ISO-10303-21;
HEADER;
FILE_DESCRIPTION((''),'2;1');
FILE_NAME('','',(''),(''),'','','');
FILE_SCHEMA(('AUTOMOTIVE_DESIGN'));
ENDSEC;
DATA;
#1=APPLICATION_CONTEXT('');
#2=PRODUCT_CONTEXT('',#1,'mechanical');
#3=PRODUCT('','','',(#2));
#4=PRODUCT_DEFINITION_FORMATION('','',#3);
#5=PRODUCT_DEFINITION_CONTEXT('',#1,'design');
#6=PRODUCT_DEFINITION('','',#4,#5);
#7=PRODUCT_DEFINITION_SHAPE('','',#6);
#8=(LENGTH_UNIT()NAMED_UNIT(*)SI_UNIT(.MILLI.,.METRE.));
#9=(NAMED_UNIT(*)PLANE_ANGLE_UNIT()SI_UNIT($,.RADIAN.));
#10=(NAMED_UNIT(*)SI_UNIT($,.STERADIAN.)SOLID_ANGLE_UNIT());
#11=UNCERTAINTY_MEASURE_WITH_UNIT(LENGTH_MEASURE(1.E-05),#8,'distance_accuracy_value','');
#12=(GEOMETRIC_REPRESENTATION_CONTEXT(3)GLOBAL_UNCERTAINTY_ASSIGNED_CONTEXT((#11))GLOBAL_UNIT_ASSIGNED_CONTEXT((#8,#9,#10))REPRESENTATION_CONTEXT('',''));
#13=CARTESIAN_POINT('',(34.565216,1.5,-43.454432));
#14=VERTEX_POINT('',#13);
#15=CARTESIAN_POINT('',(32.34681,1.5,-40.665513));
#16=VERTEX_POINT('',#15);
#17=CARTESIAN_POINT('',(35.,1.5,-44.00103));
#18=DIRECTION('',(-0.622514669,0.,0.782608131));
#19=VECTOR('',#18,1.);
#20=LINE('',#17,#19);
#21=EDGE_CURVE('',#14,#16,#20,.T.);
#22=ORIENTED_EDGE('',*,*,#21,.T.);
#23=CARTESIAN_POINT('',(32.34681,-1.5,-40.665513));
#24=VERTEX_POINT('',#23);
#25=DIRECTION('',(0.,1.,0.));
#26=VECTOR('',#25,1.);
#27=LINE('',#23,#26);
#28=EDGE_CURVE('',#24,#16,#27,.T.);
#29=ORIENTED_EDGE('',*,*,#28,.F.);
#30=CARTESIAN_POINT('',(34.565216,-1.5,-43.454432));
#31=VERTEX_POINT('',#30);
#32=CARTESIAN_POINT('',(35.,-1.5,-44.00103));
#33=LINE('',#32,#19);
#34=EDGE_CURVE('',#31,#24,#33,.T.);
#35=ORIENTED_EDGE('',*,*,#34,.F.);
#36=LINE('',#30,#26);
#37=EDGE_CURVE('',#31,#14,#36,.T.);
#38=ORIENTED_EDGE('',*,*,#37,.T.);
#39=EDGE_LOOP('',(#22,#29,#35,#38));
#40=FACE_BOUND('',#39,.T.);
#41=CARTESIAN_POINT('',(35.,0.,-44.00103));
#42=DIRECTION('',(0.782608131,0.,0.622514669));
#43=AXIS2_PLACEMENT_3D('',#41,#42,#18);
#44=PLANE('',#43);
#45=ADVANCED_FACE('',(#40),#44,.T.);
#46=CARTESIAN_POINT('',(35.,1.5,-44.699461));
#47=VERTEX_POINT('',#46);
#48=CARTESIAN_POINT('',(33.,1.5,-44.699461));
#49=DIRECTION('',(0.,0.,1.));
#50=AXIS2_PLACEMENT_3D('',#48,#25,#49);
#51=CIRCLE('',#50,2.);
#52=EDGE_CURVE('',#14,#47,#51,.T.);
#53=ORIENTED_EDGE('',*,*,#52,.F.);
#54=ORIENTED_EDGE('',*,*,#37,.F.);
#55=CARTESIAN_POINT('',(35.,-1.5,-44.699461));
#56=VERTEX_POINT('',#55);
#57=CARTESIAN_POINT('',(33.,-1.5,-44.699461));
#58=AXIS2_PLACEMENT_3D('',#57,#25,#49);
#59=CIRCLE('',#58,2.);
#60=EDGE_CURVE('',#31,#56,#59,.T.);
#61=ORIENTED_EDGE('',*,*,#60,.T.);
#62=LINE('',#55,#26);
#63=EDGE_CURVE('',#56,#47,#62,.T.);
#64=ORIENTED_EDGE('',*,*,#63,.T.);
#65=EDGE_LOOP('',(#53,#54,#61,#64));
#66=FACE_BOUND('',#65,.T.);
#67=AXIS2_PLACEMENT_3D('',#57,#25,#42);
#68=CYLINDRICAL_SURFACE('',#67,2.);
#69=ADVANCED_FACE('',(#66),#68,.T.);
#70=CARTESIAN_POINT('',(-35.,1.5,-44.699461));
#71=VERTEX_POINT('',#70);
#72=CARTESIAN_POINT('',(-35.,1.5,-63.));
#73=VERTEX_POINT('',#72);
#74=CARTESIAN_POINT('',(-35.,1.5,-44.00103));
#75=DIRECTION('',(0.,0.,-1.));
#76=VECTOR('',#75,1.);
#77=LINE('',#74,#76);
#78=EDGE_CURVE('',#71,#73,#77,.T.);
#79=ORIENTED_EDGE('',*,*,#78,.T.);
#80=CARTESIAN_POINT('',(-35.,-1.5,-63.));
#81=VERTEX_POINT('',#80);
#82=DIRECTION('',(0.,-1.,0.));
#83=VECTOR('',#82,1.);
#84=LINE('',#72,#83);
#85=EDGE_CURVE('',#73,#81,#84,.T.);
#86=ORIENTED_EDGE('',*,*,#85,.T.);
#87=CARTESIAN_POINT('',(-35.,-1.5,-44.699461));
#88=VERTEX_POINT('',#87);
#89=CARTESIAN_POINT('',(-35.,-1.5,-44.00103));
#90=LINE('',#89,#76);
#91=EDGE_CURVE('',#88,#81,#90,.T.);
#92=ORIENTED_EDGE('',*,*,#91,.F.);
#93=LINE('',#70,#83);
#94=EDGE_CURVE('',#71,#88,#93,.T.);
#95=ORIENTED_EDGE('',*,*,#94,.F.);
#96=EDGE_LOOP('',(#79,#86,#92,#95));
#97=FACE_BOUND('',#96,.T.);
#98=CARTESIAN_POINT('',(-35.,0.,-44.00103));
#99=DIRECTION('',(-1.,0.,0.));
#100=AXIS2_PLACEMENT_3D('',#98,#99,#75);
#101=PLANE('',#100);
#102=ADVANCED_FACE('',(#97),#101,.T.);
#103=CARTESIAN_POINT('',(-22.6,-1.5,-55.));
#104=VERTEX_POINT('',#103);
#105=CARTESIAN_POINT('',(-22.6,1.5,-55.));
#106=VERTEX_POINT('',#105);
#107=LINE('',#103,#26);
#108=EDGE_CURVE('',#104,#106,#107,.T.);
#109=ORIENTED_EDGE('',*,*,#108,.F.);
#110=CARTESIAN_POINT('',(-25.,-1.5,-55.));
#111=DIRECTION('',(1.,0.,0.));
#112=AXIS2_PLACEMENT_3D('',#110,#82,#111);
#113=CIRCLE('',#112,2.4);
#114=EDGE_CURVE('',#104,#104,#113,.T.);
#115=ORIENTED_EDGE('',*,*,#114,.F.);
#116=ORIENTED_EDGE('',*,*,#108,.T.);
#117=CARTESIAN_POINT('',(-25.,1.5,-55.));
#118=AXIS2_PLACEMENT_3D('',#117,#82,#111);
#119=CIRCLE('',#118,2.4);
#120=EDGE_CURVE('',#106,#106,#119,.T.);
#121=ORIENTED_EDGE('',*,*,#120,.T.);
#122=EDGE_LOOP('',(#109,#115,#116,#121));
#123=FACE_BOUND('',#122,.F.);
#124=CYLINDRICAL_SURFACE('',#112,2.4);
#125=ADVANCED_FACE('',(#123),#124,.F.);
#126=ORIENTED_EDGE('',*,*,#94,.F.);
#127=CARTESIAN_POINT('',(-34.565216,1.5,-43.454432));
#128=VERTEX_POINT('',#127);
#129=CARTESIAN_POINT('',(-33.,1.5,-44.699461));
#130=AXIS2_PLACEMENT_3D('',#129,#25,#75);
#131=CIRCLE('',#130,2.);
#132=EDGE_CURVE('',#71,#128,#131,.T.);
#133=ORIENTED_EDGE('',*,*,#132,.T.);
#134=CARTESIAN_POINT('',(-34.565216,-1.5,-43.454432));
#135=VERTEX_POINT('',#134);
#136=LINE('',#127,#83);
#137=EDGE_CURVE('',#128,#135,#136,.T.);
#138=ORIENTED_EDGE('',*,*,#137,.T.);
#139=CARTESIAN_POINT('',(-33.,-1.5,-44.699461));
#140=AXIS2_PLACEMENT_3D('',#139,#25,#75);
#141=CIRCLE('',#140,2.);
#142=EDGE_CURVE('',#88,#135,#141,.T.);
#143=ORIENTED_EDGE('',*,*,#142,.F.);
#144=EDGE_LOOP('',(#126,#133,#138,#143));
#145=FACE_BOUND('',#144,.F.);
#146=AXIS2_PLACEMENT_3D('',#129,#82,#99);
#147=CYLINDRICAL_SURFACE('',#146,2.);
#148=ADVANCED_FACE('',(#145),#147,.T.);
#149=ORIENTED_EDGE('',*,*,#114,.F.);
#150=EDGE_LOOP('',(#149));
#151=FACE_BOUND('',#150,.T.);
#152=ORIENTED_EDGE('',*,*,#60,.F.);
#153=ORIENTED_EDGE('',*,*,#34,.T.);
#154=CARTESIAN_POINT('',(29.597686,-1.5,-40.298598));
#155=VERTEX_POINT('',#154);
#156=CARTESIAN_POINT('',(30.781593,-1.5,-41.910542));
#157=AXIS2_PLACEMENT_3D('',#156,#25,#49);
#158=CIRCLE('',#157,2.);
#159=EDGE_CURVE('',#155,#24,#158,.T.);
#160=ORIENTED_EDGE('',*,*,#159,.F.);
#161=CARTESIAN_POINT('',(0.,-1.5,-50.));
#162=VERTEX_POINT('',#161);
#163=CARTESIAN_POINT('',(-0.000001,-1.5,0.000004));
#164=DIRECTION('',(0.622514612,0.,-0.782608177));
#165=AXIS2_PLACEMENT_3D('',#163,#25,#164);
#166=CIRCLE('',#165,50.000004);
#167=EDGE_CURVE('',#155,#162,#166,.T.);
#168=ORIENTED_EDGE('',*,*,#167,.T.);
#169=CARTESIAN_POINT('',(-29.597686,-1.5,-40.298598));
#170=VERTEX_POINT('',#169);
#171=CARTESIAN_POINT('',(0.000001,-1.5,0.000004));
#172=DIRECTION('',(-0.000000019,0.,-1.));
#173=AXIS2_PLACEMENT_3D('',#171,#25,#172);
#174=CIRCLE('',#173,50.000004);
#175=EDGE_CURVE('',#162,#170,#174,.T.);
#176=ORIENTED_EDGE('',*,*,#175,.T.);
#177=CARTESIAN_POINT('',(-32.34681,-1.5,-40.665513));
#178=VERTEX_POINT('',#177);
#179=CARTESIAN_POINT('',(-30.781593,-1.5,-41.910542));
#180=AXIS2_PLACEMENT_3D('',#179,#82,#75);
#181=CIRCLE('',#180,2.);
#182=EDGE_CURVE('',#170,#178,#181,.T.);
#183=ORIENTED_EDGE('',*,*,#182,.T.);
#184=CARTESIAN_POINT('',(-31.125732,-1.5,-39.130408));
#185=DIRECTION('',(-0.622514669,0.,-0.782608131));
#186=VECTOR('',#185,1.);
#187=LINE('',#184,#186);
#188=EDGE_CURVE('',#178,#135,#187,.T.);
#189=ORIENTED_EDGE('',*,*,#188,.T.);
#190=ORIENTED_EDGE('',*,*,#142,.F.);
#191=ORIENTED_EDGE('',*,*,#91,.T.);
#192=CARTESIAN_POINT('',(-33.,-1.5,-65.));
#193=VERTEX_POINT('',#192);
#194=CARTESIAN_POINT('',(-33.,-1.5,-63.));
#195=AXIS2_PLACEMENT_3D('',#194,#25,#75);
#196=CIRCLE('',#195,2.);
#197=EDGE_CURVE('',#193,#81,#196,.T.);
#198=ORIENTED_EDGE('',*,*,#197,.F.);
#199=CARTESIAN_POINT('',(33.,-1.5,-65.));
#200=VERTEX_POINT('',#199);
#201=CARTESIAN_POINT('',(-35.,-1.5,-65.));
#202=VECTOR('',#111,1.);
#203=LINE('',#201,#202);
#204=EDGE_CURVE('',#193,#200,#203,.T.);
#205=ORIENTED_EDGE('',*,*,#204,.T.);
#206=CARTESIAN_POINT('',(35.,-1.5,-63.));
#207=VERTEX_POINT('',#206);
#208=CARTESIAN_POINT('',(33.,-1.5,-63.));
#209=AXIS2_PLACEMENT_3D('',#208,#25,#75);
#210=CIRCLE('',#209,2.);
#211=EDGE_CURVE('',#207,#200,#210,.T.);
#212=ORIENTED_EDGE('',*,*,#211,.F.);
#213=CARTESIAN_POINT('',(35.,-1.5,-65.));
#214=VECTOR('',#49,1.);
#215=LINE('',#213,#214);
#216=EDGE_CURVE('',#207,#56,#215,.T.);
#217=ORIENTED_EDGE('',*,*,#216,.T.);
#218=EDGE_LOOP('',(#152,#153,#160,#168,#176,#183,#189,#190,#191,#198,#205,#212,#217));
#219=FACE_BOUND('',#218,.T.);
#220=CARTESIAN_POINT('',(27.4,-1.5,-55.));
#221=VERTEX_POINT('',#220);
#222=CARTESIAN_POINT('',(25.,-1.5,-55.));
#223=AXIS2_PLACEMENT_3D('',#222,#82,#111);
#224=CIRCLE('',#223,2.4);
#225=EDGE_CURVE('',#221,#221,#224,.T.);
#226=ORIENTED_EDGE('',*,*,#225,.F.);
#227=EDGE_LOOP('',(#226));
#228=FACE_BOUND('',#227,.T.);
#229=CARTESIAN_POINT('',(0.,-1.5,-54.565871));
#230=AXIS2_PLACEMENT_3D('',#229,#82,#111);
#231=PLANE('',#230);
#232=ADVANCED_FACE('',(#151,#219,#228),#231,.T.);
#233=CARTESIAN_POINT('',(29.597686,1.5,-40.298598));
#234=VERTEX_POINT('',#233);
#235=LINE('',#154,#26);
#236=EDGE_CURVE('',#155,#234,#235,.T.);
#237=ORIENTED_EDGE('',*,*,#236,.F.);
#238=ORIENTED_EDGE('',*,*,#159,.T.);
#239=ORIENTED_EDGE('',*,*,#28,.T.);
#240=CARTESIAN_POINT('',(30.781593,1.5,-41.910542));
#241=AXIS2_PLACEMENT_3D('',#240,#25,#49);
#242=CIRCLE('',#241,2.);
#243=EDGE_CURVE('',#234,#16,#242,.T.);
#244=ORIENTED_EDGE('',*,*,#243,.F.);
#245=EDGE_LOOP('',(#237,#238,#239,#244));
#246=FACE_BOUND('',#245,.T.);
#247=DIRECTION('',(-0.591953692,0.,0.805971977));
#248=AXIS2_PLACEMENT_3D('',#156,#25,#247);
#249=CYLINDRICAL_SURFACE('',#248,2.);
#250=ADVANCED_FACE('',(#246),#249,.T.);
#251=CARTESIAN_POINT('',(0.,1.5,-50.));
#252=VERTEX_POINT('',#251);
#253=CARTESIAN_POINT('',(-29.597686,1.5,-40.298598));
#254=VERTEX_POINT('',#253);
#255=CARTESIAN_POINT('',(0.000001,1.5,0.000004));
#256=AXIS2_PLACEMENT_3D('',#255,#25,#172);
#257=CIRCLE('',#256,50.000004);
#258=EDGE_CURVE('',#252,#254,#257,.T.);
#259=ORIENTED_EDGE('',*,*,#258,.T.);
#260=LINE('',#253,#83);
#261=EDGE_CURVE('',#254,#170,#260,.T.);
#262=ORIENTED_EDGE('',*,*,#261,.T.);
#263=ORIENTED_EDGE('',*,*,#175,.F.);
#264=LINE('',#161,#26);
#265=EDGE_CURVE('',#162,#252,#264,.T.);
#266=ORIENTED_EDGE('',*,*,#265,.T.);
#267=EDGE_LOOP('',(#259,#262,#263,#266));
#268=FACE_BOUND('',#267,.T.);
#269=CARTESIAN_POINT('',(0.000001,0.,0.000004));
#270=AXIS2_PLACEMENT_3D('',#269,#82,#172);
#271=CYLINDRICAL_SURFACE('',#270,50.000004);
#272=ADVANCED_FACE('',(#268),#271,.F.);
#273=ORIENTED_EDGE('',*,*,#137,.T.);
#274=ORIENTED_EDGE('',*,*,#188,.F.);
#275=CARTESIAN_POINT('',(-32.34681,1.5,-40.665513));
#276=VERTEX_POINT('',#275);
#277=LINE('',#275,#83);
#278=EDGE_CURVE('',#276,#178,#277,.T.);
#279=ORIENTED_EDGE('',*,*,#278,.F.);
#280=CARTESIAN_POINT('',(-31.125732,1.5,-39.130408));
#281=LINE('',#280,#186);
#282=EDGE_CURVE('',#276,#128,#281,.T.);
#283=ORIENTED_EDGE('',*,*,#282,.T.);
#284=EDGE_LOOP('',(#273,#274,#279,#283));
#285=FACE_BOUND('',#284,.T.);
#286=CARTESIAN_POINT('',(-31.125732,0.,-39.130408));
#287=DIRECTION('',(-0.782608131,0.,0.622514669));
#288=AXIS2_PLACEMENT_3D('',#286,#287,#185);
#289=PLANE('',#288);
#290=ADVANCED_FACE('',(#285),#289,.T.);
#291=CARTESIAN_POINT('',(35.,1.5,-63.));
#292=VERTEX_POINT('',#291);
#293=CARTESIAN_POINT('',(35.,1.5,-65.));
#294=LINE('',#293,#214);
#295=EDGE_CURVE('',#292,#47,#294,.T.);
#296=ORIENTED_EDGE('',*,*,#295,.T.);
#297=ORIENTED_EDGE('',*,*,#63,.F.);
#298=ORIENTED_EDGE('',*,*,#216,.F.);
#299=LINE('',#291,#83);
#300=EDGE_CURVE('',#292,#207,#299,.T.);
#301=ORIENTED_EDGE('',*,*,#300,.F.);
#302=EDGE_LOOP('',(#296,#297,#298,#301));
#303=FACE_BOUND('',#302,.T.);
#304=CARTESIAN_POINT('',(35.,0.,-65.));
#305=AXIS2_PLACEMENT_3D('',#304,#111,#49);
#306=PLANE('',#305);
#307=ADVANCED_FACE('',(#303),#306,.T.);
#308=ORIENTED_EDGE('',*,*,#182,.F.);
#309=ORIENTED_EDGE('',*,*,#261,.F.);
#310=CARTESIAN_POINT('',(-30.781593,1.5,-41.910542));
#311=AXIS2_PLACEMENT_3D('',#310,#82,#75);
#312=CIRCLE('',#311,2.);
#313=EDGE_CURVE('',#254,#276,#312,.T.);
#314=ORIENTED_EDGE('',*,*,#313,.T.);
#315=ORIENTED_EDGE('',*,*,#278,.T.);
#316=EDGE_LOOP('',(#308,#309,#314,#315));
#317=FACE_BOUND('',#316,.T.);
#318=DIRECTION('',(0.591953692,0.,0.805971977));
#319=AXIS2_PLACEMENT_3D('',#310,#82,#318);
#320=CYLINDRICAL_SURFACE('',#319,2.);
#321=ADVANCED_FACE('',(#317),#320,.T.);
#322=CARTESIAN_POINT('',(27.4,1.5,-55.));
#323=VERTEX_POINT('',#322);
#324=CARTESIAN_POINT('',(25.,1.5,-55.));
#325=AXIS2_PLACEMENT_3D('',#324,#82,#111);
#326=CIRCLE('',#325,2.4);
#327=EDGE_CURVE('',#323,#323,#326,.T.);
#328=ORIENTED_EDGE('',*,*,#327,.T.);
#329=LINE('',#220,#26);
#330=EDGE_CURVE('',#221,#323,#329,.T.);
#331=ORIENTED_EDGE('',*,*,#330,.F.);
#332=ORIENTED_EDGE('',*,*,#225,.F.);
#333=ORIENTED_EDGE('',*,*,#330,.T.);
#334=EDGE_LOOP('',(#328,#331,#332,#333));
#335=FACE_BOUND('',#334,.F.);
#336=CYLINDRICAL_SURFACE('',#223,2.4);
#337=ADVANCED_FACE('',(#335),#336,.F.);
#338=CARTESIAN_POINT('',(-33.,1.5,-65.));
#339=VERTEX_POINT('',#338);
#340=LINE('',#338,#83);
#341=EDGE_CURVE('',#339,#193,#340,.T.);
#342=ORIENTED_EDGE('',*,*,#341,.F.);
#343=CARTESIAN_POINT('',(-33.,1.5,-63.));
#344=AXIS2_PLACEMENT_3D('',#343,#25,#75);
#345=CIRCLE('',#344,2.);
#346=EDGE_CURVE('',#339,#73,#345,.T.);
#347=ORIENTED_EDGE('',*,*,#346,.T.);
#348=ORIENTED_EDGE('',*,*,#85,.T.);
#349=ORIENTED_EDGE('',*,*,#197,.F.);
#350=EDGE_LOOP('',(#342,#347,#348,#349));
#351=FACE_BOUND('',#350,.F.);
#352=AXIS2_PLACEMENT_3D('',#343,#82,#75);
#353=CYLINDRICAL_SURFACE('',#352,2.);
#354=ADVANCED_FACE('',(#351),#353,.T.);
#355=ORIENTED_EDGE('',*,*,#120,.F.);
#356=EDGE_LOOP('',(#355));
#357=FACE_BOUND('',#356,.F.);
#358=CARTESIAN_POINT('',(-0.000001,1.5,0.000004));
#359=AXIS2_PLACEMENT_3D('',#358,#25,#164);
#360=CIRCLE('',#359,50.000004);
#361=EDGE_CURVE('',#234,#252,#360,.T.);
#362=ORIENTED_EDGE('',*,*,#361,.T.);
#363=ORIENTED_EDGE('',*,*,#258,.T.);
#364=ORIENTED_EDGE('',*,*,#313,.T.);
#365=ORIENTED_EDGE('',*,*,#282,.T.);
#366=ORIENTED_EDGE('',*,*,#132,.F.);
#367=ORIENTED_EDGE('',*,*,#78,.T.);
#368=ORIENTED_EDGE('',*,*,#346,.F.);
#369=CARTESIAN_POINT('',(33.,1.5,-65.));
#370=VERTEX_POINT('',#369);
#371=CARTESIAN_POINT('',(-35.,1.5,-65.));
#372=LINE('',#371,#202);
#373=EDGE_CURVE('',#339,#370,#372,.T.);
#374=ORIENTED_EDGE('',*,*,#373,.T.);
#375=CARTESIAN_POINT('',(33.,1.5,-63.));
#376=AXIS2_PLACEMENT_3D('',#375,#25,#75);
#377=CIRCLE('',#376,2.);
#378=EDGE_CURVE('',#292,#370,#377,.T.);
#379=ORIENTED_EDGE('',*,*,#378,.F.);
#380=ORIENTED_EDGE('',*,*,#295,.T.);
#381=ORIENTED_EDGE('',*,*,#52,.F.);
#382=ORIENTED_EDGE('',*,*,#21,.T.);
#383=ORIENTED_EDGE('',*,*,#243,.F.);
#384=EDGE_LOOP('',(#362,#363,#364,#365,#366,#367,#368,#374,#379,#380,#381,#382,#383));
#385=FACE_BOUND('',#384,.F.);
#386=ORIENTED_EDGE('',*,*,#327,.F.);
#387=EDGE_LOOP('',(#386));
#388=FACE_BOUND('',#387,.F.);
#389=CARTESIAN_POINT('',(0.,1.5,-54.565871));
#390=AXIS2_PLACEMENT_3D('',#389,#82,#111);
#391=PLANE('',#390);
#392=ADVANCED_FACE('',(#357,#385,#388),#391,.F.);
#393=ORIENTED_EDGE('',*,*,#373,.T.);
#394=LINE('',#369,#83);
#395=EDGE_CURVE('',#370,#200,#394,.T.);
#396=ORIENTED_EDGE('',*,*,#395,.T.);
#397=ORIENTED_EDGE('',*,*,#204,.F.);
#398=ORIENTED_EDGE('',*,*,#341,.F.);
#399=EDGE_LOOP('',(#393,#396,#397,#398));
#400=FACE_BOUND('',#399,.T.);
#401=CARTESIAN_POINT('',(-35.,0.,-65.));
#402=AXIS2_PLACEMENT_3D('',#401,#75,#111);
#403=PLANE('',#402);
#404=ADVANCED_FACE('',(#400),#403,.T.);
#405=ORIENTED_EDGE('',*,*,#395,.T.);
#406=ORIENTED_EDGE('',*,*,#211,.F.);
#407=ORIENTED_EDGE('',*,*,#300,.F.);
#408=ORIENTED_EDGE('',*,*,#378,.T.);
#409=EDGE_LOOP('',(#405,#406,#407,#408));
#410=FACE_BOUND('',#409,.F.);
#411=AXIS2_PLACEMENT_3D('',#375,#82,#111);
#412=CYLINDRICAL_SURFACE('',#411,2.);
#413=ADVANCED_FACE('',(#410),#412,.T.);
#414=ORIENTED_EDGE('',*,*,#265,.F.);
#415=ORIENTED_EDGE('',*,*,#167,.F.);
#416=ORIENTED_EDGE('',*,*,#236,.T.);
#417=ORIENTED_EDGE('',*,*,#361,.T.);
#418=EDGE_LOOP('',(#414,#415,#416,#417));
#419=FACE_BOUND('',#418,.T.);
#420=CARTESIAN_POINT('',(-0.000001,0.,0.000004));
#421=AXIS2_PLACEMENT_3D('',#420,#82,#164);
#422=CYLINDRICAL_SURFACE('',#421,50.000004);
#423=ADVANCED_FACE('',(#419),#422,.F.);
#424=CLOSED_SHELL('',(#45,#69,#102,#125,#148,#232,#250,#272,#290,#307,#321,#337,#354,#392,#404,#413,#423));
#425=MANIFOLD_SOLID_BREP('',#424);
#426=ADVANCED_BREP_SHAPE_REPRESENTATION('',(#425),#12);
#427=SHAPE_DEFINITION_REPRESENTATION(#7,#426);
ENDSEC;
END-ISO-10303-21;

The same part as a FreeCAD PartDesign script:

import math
import FreeCAD as App
import Part
import Sketcher
from FreeCAD import Vector
Q = App.Units.Quantity


def edges_at(feature, points):
    """Names of the edges that pass closest to the given points."""
    edges = feature.Shape.Edges
    near = lambda p: min(range(len(edges)), key=lambda i: edges[i].distToShape(Part.Vertex(*p))[0])
    return sorted({f"Edge{near(p) + 1}" for p in points})

doc = App.newDocument("Part")
params = doc.addObject("Spreadsheet::Sheet", "Params")
for row, (alias, value) in enumerate([
    ("sketch1_width", "70 mm"),
    ("pad1_length", "3 mm"),
    ("fillet_radius", "2 mm"),
    ("sketch2_diameter", "4.8 mm"),
    ("pocket1_length", "25 mm"),
], start=1):
    params.set(f"A{row}", alias)
    params.set(f"B{row}", "=" + value)
    params.setAlias(f"B{row}", alias)

body = doc.addObject("PartDesign::Body", "Body")

# Sketch on XZ plane
sketch1 = body.newObject("Sketcher::SketchObject", "Sketch")
sketch1.AttachmentSupport = (doc.getObject("XZ_Plane"), [""])
sketch1.MapMode = "FlatFace"
sketch1.addGeometry([
    Part.ArcOfCircle(Part.Circle(Vector(0, 0, 0), Vector(0, 0, 1), 50), math.radians(-128), math.radians(-90)),  # 0
    Part.LineSegment(Vector(-31, -39, 0), Vector(-35, -44, 0)),  # 1
    Part.LineSegment(Vector(-35, -44, 0), Vector(-35, -65, 0)),  # 2
    Part.LineSegment(Vector(-35, -65, 0), Vector(35, -65, 0)),  # 3
    Part.LineSegment(Vector(35, -65, 0), Vector(35, -44, 0)),  # 4
    Part.LineSegment(Vector(35, -44, 0), Vector(31, -39, 0)),  # 5
    Part.ArcOfCircle(Part.Circle(Vector(0, 0, 0), Vector(0, 0, 1), 50), math.radians(-90), math.radians(-52)),  # 6
], False)
sketch1.addConstraint([
    Sketcher.Constraint("Coincident", 0, 1, 1, 1),
    Sketcher.Constraint("Coincident", 1, 2, 2, 1),
    Sketcher.Constraint("Coincident", 2, 2, 3, 1),
    Sketcher.Constraint("Coincident", 3, 2, 4, 1),
    Sketcher.Constraint("Coincident", 4, 2, 5, 1),
    Sketcher.Constraint("Coincident", 5, 2, 6, 2),
    Sketcher.Constraint("Tangent", 6, 1, 0, 2),
    Sketcher.Constraint("Vertical", 2),
    Sketcher.Constraint("Horizontal", 3),
    Sketcher.Constraint("Vertical", 4),
    Sketcher.Constraint("Coincident", 0, 3, -1, 1),
    Sketcher.Constraint("Equal", 0, 6),
    Sketcher.Constraint("Symmetric", 1, 2, 4, 2, -2),
    Sketcher.Constraint("PointOnObject", 6, 1, -2),
    Sketcher.Constraint("Horizontal", 0, 1, 5, 2),
    Sketcher.Constraint("DistanceX", 3, 1, 3, 2, 70.0),
    Sketcher.Constraint("DistanceY", 2, 2, -1, 1, 65.0),
    Sketcher.Constraint("DistanceY", 6, 1, -1, 1, 50.0),
    Sketcher.Constraint("Angle", 1, Q("-128.500002 deg")),
    Sketcher.Constraint("DistanceY", 2, 2, 2, 1, 20.99897),
])
sketch1.setExpression("Constraints[15]", "Params.sketch1_width")
pad1 = body.newObject("PartDesign::Pad", "Pad")
pad1.Profile = sketch1
pad1.setExpression("Length", "Params.pad1_length")
pad1.Midplane = True
doc.recompute()

fillet = body.newObject("PartDesign::Fillet", "Fillet")
fillet.Base = (pad1, edges_at(pad1, [
    (31.126, 0, -39.13),
    (35, 0, -44.001),
    (35, 0, -65),
    (-31.126, 0, -39.13),
    (-35, 0, -44.001),
    (-35, 0, -65),
]))
fillet.setExpression("Radius", "Params.fillet_radius")

# Sketch on XZ plane
sketch2 = body.newObject("Sketcher::SketchObject", "Sketch001")
sketch2.AttachmentSupport = (doc.getObject("XZ_Plane"), [""])
sketch2.MapMode = "FlatFace"
sketch2.AttachmentOffset = App.Placement(Vector(0, 0, 1.5), App.Rotation())
sketch2.addGeometry([
    Part.Circle(Vector(-25, -55, 0), Vector(0, 0, 1), 2.4),
    Part.Circle(Vector(25, -55, 0), Vector(0, 0, 1), 2.4),
], False)
sketch2.addConstraint([
    Sketcher.Constraint("Equal", 0, 1),
    Sketcher.Constraint("Symmetric", 0, 3, 1, 3, -2),
    Sketcher.Constraint("Diameter", 0, 4.8),
    Sketcher.Constraint("DistanceX", 0, 3, -1, 1, 25.0),
    Sketcher.Constraint("DistanceY", 0, 3, -1, 1, 55.0),
])
sketch2.setExpression("Constraints[2]", "Params.sketch2_diameter")
pocket1 = body.newObject("PartDesign::Pocket", "Pocket")
pocket1.Profile = sketch2
pocket1.setExpression("Length", "Params.pocket1_length")

doc.recompute()
